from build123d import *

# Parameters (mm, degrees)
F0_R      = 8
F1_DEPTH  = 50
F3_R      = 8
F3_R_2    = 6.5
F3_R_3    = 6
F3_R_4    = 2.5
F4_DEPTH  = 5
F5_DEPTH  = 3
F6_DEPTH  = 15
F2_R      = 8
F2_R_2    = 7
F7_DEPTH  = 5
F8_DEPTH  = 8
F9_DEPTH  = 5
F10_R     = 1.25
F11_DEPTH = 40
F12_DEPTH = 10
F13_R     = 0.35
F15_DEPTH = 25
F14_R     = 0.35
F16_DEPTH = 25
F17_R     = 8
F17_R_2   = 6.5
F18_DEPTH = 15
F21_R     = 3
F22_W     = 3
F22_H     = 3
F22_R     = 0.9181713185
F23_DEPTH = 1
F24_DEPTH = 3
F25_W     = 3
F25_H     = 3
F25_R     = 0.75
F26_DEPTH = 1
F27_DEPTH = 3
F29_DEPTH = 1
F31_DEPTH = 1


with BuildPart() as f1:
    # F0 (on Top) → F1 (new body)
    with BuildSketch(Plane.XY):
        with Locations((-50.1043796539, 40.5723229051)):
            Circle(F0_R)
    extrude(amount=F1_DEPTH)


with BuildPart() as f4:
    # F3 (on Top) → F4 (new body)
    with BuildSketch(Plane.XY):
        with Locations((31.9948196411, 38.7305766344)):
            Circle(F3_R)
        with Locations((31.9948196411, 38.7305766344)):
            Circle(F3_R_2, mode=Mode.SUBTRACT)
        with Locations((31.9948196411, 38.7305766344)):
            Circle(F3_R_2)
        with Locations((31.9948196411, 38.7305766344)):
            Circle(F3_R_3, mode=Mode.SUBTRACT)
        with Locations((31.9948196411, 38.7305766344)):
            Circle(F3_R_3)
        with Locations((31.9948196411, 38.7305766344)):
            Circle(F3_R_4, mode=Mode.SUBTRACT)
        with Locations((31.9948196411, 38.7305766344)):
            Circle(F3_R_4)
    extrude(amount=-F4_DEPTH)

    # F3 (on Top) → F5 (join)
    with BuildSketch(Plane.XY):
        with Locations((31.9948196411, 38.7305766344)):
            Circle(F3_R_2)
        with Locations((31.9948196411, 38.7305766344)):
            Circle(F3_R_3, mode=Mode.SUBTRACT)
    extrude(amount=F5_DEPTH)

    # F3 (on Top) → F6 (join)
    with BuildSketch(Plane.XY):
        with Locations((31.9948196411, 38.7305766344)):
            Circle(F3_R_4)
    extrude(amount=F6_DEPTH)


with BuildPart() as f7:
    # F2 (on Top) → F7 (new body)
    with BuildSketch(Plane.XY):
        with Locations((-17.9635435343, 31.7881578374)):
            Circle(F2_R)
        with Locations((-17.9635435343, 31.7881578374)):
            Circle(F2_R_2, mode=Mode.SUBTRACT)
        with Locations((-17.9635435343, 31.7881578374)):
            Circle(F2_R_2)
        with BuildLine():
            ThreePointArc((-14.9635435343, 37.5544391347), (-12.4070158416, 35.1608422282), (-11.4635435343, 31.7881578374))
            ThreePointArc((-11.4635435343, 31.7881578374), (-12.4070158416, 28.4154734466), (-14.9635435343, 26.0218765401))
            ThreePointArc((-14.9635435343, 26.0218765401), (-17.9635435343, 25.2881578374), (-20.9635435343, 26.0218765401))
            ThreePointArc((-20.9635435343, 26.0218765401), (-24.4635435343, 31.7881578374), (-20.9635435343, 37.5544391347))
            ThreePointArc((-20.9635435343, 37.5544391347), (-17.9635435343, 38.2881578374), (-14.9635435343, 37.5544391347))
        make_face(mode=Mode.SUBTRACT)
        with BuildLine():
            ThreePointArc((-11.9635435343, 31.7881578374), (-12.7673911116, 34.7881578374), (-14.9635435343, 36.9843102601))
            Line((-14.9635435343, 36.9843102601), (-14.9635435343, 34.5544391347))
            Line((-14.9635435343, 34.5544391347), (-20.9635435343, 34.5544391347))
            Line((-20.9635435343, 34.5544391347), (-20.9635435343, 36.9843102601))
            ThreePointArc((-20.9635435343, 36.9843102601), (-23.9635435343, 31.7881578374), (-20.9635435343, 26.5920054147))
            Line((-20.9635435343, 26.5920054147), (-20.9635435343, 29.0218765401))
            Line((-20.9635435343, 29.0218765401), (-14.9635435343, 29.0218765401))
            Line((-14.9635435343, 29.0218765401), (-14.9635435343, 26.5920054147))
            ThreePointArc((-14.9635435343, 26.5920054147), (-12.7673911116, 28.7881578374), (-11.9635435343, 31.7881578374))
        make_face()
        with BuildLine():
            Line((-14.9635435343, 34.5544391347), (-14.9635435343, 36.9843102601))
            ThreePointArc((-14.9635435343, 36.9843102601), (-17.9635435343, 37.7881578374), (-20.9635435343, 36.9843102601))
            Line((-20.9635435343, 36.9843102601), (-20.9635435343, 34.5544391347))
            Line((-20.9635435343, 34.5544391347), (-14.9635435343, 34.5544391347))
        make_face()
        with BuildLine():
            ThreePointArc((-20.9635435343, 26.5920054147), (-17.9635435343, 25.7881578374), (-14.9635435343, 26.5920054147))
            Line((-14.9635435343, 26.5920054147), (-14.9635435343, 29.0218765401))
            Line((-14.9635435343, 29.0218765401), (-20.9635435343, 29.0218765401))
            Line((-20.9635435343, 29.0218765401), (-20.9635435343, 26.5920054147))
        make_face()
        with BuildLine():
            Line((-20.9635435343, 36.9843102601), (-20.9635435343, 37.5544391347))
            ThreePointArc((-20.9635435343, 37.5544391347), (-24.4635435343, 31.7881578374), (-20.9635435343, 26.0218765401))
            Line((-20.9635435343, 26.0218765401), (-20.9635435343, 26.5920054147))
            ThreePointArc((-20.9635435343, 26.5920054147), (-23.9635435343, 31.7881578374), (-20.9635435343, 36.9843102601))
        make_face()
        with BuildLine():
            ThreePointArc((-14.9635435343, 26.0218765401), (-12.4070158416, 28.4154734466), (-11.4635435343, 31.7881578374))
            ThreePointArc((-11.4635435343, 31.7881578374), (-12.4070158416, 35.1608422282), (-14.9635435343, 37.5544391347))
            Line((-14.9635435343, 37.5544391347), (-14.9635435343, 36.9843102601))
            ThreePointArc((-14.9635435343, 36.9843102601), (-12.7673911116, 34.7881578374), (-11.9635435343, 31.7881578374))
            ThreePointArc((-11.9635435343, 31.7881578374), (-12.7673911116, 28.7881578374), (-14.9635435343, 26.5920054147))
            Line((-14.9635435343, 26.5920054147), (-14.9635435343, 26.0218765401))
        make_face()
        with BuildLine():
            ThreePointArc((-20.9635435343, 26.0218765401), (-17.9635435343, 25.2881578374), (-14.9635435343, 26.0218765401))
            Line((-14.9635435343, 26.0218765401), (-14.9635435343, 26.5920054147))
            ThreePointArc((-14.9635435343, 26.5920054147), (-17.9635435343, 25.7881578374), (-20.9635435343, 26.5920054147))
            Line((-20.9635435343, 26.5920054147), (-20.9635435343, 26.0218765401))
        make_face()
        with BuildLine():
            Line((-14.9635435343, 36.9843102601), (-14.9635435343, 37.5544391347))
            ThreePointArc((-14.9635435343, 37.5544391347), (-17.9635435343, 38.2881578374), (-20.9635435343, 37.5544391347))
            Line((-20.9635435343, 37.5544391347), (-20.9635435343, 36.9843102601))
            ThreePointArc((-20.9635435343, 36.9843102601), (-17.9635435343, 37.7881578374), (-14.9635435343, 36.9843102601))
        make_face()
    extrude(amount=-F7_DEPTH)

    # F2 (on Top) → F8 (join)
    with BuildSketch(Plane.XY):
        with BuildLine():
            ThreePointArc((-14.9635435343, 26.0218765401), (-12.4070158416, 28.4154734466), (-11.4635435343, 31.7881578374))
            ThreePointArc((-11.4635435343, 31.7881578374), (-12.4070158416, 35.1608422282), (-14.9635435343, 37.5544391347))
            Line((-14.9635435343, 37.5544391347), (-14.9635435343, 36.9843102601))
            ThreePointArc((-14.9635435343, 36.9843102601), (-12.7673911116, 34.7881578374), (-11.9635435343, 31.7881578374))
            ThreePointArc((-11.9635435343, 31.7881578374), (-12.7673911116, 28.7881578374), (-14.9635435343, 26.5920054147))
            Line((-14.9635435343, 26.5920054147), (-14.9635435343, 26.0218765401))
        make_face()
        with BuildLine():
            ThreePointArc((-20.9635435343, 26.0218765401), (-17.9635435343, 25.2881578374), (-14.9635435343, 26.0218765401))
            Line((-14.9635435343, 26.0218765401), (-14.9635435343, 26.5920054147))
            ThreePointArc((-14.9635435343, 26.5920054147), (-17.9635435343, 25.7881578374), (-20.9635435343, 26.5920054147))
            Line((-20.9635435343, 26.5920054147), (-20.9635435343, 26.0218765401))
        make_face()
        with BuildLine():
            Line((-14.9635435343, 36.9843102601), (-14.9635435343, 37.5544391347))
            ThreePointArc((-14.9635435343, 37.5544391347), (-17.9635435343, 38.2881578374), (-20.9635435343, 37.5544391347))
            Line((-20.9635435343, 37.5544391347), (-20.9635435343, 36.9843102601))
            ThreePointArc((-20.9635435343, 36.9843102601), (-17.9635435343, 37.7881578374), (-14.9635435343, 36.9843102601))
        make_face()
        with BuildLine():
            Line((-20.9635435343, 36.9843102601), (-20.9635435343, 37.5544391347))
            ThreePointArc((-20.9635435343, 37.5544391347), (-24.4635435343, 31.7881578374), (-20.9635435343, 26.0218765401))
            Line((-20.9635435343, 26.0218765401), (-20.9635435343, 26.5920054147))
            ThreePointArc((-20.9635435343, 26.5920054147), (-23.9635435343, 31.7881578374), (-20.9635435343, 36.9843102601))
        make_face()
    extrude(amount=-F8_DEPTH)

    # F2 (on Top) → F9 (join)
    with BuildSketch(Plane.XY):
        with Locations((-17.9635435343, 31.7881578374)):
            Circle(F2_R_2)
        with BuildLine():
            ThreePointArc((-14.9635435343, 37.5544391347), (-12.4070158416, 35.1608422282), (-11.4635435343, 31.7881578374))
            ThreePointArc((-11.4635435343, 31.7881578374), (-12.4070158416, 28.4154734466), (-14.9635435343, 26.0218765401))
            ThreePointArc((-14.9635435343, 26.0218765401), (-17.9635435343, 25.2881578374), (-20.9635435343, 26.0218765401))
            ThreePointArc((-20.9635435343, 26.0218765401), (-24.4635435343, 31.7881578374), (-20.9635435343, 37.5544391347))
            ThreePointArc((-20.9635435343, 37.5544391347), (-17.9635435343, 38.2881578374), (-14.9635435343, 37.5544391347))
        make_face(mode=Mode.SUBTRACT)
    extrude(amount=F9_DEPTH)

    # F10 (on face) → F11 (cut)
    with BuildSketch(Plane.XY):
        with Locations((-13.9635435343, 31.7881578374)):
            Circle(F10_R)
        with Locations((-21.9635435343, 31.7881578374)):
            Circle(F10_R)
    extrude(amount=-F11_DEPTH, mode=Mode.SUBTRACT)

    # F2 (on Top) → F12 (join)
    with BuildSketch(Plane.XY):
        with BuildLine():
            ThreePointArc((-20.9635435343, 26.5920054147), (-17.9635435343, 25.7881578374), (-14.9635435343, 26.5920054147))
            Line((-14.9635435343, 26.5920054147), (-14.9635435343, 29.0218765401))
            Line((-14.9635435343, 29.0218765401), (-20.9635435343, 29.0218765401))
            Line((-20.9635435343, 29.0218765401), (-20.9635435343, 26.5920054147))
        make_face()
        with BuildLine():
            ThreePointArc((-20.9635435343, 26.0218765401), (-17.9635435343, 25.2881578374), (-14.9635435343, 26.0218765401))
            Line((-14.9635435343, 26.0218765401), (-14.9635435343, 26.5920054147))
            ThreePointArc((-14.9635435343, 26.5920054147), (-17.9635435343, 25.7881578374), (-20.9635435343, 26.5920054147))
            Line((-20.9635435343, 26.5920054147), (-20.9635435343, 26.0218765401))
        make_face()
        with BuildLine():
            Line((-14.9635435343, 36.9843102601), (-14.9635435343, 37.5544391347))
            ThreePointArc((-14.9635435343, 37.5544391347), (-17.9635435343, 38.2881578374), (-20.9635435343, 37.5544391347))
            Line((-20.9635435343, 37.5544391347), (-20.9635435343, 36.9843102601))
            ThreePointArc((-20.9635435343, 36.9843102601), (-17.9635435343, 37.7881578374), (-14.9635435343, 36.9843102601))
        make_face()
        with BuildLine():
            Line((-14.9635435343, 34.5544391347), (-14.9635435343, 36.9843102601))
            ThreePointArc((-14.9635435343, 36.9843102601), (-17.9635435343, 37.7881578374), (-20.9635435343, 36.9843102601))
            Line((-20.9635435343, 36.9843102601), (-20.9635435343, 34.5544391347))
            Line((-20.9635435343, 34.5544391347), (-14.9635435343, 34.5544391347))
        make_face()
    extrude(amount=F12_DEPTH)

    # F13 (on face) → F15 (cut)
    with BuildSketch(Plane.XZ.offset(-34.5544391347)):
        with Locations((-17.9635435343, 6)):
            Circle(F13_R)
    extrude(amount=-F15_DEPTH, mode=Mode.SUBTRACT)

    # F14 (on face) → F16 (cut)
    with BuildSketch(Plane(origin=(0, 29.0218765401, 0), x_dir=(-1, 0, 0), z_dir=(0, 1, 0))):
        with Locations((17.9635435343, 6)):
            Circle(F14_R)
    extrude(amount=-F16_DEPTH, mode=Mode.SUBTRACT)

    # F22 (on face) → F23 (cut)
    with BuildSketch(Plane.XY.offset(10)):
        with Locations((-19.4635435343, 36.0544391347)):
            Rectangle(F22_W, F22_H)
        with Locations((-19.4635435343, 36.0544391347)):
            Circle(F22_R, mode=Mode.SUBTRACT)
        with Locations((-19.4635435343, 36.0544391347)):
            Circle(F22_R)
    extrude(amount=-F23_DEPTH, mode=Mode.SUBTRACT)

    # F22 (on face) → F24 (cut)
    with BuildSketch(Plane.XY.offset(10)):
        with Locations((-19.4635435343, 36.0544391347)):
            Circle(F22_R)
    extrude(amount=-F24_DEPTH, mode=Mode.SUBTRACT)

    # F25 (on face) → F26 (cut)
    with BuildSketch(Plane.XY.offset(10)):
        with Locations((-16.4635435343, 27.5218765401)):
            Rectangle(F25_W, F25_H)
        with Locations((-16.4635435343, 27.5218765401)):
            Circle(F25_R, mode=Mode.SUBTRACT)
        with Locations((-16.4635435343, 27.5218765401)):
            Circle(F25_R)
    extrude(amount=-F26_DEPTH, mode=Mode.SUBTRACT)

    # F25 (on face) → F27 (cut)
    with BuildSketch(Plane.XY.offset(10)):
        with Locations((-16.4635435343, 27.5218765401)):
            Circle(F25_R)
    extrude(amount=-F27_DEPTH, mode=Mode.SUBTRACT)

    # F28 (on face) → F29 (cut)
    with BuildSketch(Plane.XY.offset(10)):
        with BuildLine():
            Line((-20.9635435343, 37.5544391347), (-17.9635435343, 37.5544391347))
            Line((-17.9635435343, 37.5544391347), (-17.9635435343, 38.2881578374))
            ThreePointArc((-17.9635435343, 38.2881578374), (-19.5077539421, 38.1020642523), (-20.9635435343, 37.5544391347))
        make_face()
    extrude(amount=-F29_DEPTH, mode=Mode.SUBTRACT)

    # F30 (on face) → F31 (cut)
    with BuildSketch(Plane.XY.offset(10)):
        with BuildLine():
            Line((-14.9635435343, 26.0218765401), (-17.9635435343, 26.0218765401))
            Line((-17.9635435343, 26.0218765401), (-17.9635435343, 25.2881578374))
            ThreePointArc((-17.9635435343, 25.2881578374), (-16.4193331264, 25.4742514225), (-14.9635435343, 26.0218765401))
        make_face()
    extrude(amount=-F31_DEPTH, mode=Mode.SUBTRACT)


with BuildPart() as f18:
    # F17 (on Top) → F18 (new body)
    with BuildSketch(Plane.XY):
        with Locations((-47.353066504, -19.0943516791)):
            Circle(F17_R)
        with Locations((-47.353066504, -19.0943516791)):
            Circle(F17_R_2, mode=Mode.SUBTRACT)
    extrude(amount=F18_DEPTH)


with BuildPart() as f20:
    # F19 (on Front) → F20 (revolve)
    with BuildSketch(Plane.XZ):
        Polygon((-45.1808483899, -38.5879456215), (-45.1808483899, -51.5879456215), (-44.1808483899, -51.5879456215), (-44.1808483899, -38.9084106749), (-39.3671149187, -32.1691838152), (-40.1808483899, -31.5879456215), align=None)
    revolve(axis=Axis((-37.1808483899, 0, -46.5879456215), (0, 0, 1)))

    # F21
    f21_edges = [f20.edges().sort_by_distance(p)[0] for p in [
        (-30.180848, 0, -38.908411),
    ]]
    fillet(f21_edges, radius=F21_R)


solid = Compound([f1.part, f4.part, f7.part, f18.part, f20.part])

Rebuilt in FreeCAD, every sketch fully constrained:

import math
import FreeCAD as App
import Part
import Sketcher


def edges_at(feature, points):
    """Names of the edges that pass closest to the given points."""
    edges = feature.Shape.Edges
    near = lambda p: min(range(len(edges)), key=lambda i: edges[i].distToShape(Part.Vertex(*p))[0])
    return sorted({f"Edge{near(p) + 1}" for p in points})

doc = App.newDocument("Part")
body = doc.addObject("PartDesign::Body", "Body")

# Sketch on XY plane
sketch1 = doc.addObject("Sketcher::SketchObject", "Sketch")
body.addObject(sketch1)
sketch1.AttachmentSupport = (doc.XY_Plane, [""])
sketch1.MapMode = "FlatFace"
sketch1.addGeometry(Part.Circle(App.Vector(-50, 41, 0), App.Vector(0, 0, 1), 8), False)
sketch1.addConstraint(Sketcher.Constraint("Diameter", 0, 16.0))
sketch1.addConstraint(Sketcher.Constraint("DistanceX", 0, 3, -1, 1, 50.10438))
sketch1.addConstraint(Sketcher.Constraint("DistanceY", -1, 1, 0, 3, 40.572323))
pad1 = doc.addObject("PartDesign::Pad", "Pad")
body.addObject(pad1)
pad1.Profile = sketch1
pad1.Length = 50
body2 = doc.addObject("PartDesign::Body", "Body001")

# Sketch on XY plane
sketch2 = doc.addObject("Sketcher::SketchObject", "Sketch001")
body2.addObject(sketch2)
sketch2.AttachmentSupport = (doc.getObject("XY_Plane001"), [""])
sketch2.MapMode = "FlatFace"
sketch2.addGeometry(Part.Circle(App.Vector(32, 39, 0), App.Vector(0, 0, 1), 8), False)
sketch2.addConstraint(Sketcher.Constraint("Diameter", 0, 16.0))
sketch2.addConstraint(Sketcher.Constraint("DistanceX", -1, 1, 0, 3, 31.99482))
sketch2.addConstraint(Sketcher.Constraint("DistanceY", -1, 1, 0, 3, 38.730577))
pad2 = doc.addObject("PartDesign::Pad", "Pad001")
body2.addObject(pad2)
pad2.Profile = sketch2
pad2.Length = 5
pad2.Reversed = True

# Sketch on XY plane
sketch3 = doc.addObject("Sketcher::SketchObject", "Sketch002")
body2.addObject(sketch3)
sketch3.AttachmentSupport = (doc.getObject("XY_Plane001"), [""])
sketch3.MapMode = "FlatFace"
sketch3.addGeometry(Part.Circle(App.Vector(32, 39, 0), App.Vector(0, 0, 1), 6), False)
sketch3.addGeometry(Part.Circle(App.Vector(32, 39, 0), App.Vector(0, 0, 1), 6), False)
sketch3.addConstraint(Sketcher.Constraint("Coincident", 1, 3, 0, 3))
sketch3.addConstraint(Sketcher.Constraint("Diameter", 0, 13.0))
sketch3.addConstraint(Sketcher.Constraint("Diameter", 1, 12.0))
sketch3.addConstraint(Sketcher.Constraint("DistanceX", -1, 1, 0, 3, 31.99482))
sketch3.addConstraint(Sketcher.Constraint("DistanceY", -1, 1, 0, 3, 38.730577))
pad3 = doc.addObject("PartDesign::Pad", "Pad002")
body2.addObject(pad3)
pad3.Profile = sketch3
pad3.Length = 3

# Sketch on XY plane
sketch4 = doc.addObject("Sketcher::SketchObject", "Sketch003")
body2.addObject(sketch4)
sketch4.AttachmentSupport = (doc.getObject("XY_Plane001"), [""])
sketch4.MapMode = "FlatFace"
sketch4.addGeometry(Part.Circle(App.Vector(32, 38.7, 0), App.Vector(0, 0, 1), 2.5), False)
sketch4.addConstraint(Sketcher.Constraint("Diameter", 0, 5.0))
sketch4.addConstraint(Sketcher.Constraint("DistanceX", -1, 1, 0, 3, 31.99482))
sketch4.addConstraint(Sketcher.Constraint("DistanceY", -1, 1, 0, 3, 38.730577))
pad4 = doc.addObject("PartDesign::Pad", "Pad003")
body2.addObject(pad4)
pad4.Profile = sketch4
pad4.Length = 15
body3 = doc.addObject("PartDesign::Body", "Body002")

# Sketch on XY plane
sketch5 = doc.addObject("Sketcher::SketchObject", "Sketch004")
body3.addObject(sketch5)
sketch5.AttachmentSupport = (doc.getObject("XY_Plane002"), [""])
sketch5.MapMode = "FlatFace"
sketch5.addGeometry(Part.Circle(App.Vector(-18, 32, 0), App.Vector(0, 0, 1), 8), False)
sketch5.addConstraint(Sketcher.Constraint("Diameter", 0, 16.0))
sketch5.addConstraint(Sketcher.Constraint("DistanceX", 0, 3, -1, 1, 17.963544))
sketch5.addConstraint(Sketcher.Constraint("DistanceY", -1, 1, 0, 3, 31.788158))
pad5 = doc.addObject("PartDesign::Pad", "Pad004")
body3.addObject(pad5)
pad5.Profile = sketch5
pad5.Length = 5
pad5.Reversed = True

# Sketch on XY plane
sketch6 = doc.addObject("Sketcher::SketchObject", "Sketch005")
body3.addObject(sketch6)
sketch6.AttachmentSupport = (doc.getObject("XY_Plane002"), [""])
sketch6.MapMode = "FlatFace"
sketch6.addGeometry(Part.ArcOfCircle(Part.Circle(App.Vector(-18, 32, 0), App.Vector(0, 0, 1), 6), math.radians(-63), math.radians(0)), False)
sketch6.addGeometry(Part.ArcOfCircle(Part.Circle(App.Vector(-18, 32, 0), App.Vector(0, 0, 1), 6), math.radians(0), math.radians(63)), False)
sketch6.addGeometry(Part.ArcOfCircle(Part.Circle(App.Vector(-18, 32, 0), App.Vector(0, 0, 1), 6), math.radians(63), math.radians(117)), False)
sketch6.addGeometry(Part.ArcOfCircle(Part.Circle(App.Vector(-18, 32, 0), App.Vector(0, 0, 1), 6), math.radians(117), math.radians(243)), False)
sketch6.addGeometry(Part.ArcOfCircle(Part.Circle(App.Vector(-18, 32, 0), App.Vector(0, 0, 1), 6), math.radians(-117), math.radians(-63)), False)
sketch6.addGeometry(Part.ArcOfCircle(Part.Circle(App.Vector(-18, 32, 0), App.Vector(0, 0, 1), 6), math.radians(60), math.radians(120)), False)
sketch6.addGeometry(Part.ArcOfCircle(Part.Circle(App.Vector(-18, 32, 0), App.Vector(0, 0, 1), 6), math.radians(0), math.radians(60)), False)
sketch6.addGeometry(Part.ArcOfCircle(Part.Circle(App.Vector(-18, 32, 0), App.Vector(0, 0, 1), 6), math.radians(-60), math.radians(0)), False)
sketch6.addGeometry(Part.ArcOfCircle(Part.Circle(App.Vector(-18, 32, 0), App.Vector(0, 0, 1), 6), math.radians(-120), math.radians(-60)), False)
sketch6.addGeometry(Part.ArcOfCircle(Part.Circle(App.Vector(-18, 32, 0), App.Vector(0, 0, 1), 6), math.radians(120), math.radians(240)), False)
sketch6.addConstraint(Sketcher.Constraint("Tangent", 0, 2, 1, 1))
sketch6.addConstraint(Sketcher.Constraint("Tangent", 1, 2, 2, 1))
sketch6.addConstraint(Sketcher.Constraint("Tangent", 2, 2, 3, 1))
sketch6.addConstraint(Sketcher.Constraint("Tangent", 3, 2, 4, 1))
sketch6.addConstraint(Sketcher.Constraint("Tangent", 4, 2, 0, 1))
sketch6.addConstraint(Sketcher.Constraint("Tangent", 5, 1, 6, 2))
sketch6.addConstraint(Sketcher.Constraint("Tangent", 6, 1, 7, 2))
sketch6.addConstraint(Sketcher.Constraint("Tangent", 7, 1, 8, 2))
sketch6.addConstraint(Sketcher.Constraint("Tangent", 8, 1, 9, 2))
sketch6.addConstraint(Sketcher.Constraint("Tangent", 9, 1, 5, 2))
sketch6.addConstraint(Sketcher.Constraint("Coincident", 2, 3, 0, 3))
sketch6.addConstraint(Sketcher.Constraint("Coincident", 5, 3, 0, 3))
sketch6.addConstraint(Sketcher.Constraint("Coincident", 7, 3, 0, 3))
sketch6.addConstraint(Sketcher.Constraint("Horizontal", 9, 3, 0, 2))
sketch6.addConstraint(Sketcher.Constraint("Horizontal", 1, 2, 2, 2))
sketch6.addConstraint(Sketcher.Constraint("Horizontal", 3, 2, 4, 2))
sketch6.addConstraint(Sketcher.Constraint("Horizontal", 0, 2, 6, 1))
sketch6.addConstraint(Sketcher.Constraint("Horizontal", 7, 1, 8, 1))
sketch6.addConstraint(Sketcher.Constraint("Horizontal", 5, 1, 9, 1))
sketch6.addConstraint(Sketcher.Constraint("Vertical", 2, 2, 3, 2))
sketch6.addConstraint(Sketcher.Constraint("Vertical", 4, 2, 5, 1))
sketch6.addConstraint(Sketcher.Constraint("Vertical", 5, 1, 7, 1))
sketch6.addConstraint(Sketcher.Constraint("Radius", 5, 6.0))
sketch6.addConstraint(Sketcher.Constraint("Radius", 0, 6.5))
sketch6.addConstraint(Sketcher.Constraint("DistanceX", 2, 3, 1, 2, 3.0))
sketch6.addConstraint(Sketcher.Constraint("DistanceY", -1, 1, 1, 2, 37.554439))
sketch6.addConstraint(Sketcher.Constraint("DistanceX", 0, 3, -1, 1, 17.963544))
pad6 = doc.addObject("PartDesign::Pad", "Pad005")
body3.addObject(pad6)
pad6.Profile = sketch6
pad6.Length = 8
pad6.Reversed = True

# Sketch on XY plane
sketch7 = doc.addObject("Sketcher::SketchObject", "Sketch006")
body3.addObject(sketch7)
sketch7.AttachmentSupport = (doc.getObject("XY_Plane002"), [""])
sketch7.MapMode = "FlatFace"
sketch7.addGeometry(Part.Circle(App.Vector(-18, 32, 0), App.Vector(0, 0, 1), 7), False)
sketch7.addGeometry(Part.ArcOfCircle(Part.Circle(App.Vector(-18, 32, 0), App.Vector(0, 0, 1), 6), math.radians(63), math.radians(117)), False)
sketch7.addGeometry(Part.ArcOfCircle(Part.Circle(App.Vector(-18, 32, 0), App.Vector(0, 0, 1), 6), math.radians(0), math.radians(63)), False)
sketch7.addGeometry(Part.ArcOfCircle(Part.Circle(App.Vector(-18, 32, 0), App.Vector(0, 0, 1), 6), math.radians(-63), math.radians(0)), False)
sketch7.addGeometry(Part.ArcOfCircle(Part.Circle(App.Vector(-18, 32, 0), App.Vector(0, 0, 1), 6), math.radians(-117), math.radians(-63)), False)
sketch7.addGeometry(Part.ArcOfCircle(Part.Circle(App.Vector(-18, 32, 0), App.Vector(0, 0, 1), 6), math.radians(117), math.radians(243)), False)
sketch7.addConstraint(Sketcher.Constraint("Tangent", 1, 1, 2, 2))
sketch7.addConstraint(Sketcher.Constraint("Tangent", 2, 1, 3, 2))
sketch7.addConstraint(Sketcher.Constraint("Tangent", 3, 1, 4, 2))
sketch7.addConstraint(Sketcher.Constraint("Tangent", 4, 1, 5, 2))
sketch7.addConstraint(Sketcher.Constraint("Tangent", 5, 1, 1, 2))
sketch7.addConstraint(Sketcher.Constraint("Coincident", 1, 3, 0, 3))
sketch7.addConstraint(Sketcher.Constraint("Coincident", 3, 3, 0, 3))
sketch7.addConstraint(Sketcher.Constraint("Horizontal", 5, 3, 2, 1))
sketch7.addConstraint(Sketcher.Constraint("Horizontal", 3, 1, 4, 1))
sketch7.addConstraint(Sketcher.Constraint("Horizontal", 1, 1, 5, 1))
sketch7.addConstraint(Sketcher.Constraint("Vertical", 1, 1, 3, 1))
sketch7.addConstraint(Sketcher.Constraint("Diameter", 0, 14.0))
sketch7.addConstraint(Sketcher.Constraint("Radius", 1, 6.5))
sketch7.addConstraint(Sketcher.Constraint("DistanceX", 1, 3, 1, 1, 3.0))
sketch7.addConstraint(Sketcher.Constraint("DistanceY", -1, 1, 1, 1, 37.554439))
sketch7.addConstraint(Sketcher.Constraint("DistanceX", 0, 3, -1, 1, 17.963544))
pad7 = doc.addObject("PartDesign::Pad", "Pad006")
body3.addObject(pad7)
pad7.Profile = sketch7
pad7.Length = 5

# Sketch on XY plane
sketch8 = doc.addObject("Sketcher::SketchObject", "Sketch007")
body3.addObject(sketch8)
sketch8.AttachmentSupport = (doc.getObject("XY_Plane002"), [""])
sketch8.MapMode = "FlatFace"
sketch8.addGeometry(Part.Circle(App.Vector(-14, 31.8, 0), App.Vector(0, 0, 1), 1.2), False)
sketch8.addGeometry(Part.Circle(App.Vector(-22, 31.8, 0), App.Vector(0, 0, 1), 1.2), False)
sketch8.addConstraint(Sketcher.Constraint("Equal", 0, 1))
sketch8.addConstraint(Sketcher.Constraint("Horizontal", 0, 3, 1, 3))
sketch8.addConstraint(Sketcher.Constraint("Diameter", 0, 2.5))
sketch8.addConstraint(Sketcher.Constraint("DistanceX", 1, 3, 0, 3, 8.0))
sketch8.addConstraint(Sketcher.Constraint("DistanceX", 0, 3, -1, 1, 13.963544))
sketch8.addConstraint(Sketcher.Constraint("DistanceY", -1, 1, 0, 3, 31.788158))
pocket1 = doc.addObject("PartDesign::Pocket", "Pocket")
body3.addObject(pocket1)
pocket1.Profile = sketch8
pocket1.Length = 40

# Sketch on XY plane
sketch9 = doc.addObject("Sketcher::SketchObject", "Sketch008")
body3.addObject(sketch9)
sketch9.AttachmentSupport = (doc.getObject("XY_Plane002"), [""])
sketch9.MapMode = "FlatFace"
sketch9.addGeometry(Part.LineSegment(App.Vector(-15, 29, 0), App.Vector(-21, 29, 0)), False)
sketch9.addGeometry(Part.LineSegment(App.Vector(-21, 29, 0), App.Vector(-21, 26, 0)), False)
sketch9.addGeometry(Part.ArcOfCircle(Part.Circle(App.Vector(-18, 31.8, 0), App.Vector(0, 0, 1), 6.5), math.radians(-117), math.radians(-63)), False)
sketch9.addGeometry(Part.LineSegment(App.Vector(-15, 26, 0), App.Vector(-15, 29, 0)), False)
sketch9.addGeometry(Part.ArcOfCircle(Part.Circle(App.Vector(-18, 31.8, 0), App.Vector(0, 0, 1), 6.5), math.radians(63), math.radians(117)), False)
sketch9.addGeometry(Part.LineSegment(App.Vector(-21, 37.6, 0), App.Vector(-21, 34.6, 0)), False)
sketch9.addGeometry(Part.LineSegment(App.Vector(-21, 34.6, 0), App.Vector(-15, 34.6, 0)), False)
sketch9.addGeometry(Part.LineSegment(App.Vector(-15, 34.6, 0), App.Vector(-15, 37.6, 0)), False)
sketch9.addConstraint(Sketcher.Constraint("Coincident", 0, 2, 1, 1))
sketch9.addConstraint(Sketcher.Constraint("Coincident", 1, 2, 2, 1))
sketch9.addConstraint(Sketcher.Constraint("Coincident", 2, 2, 3, 1))
sketch9.addConstraint(Sketcher.Constraint("Coincident", 3, 2, 0, 1))
sketch9.addConstraint(Sketcher.Constraint("Coincident", 4, 2, 5, 1))
sketch9.addConstraint(Sketcher.Constraint("Coincident", 5, 2, 6, 1))
sketch9.addConstraint(Sketcher.Constraint("Coincident", 6, 2, 7, 1))
sketch9.addConstraint(Sketcher.Constraint("Coincident", 7, 2, 4, 1))
sketch9.addConstraint(Sketcher.Constraint("Horizontal", 0))
sketch9.addConstraint(Sketcher.Constraint("Vertical", 1))
sketch9.addConstraint(Sketcher.Constraint("Vertical", 3))
sketch9.addConstraint(Sketcher.Constraint("Vertical", 5))
sketch9.addConstraint(Sketcher.Constraint("Horizontal", 6))
sketch9.addConstraint(Sketcher.Constraint("Vertical", 7))
sketch9.addConstraint(Sketcher.Constraint("Coincident", 4, 3, 2, 3))
sketch9.addConstraint(Sketcher.Constraint("Equal", 2, 4))
sketch9.addConstraint(Sketcher.Constraint("Horizontal", 1, 2, 2, 2))
sketch9.addConstraint(Sketcher.Constraint("Horizontal", 4, 2, 7, 2))
sketch9.addConstraint(Sketcher.Constraint("Vertical", 1, 2, 4, 2))
sketch9.addConstraint(Sketcher.Constraint("Equal", 3, 5))
sketch9.addConstraint(Sketcher.Constraint("Radius", 2, 6.5))
sketch9.addConstraint(Sketcher.Constraint("DistanceX", 0, 2, 0, 1, 6.0))
sketch9.addConstraint(Sketcher.Constraint("DistanceY", 1, 2, 1, 1, 3.0))
sketch9.addConstraint(Sketcher.Constraint("DistanceY", -1, 1, 4, 2, 37.554439))
sketch9.addConstraint(Sketcher.Constraint("DistanceX", 2, 3, -1, 1, 17.963544))
pad8 = doc.addObject("PartDesign::Pad", "Pad007")
body3.addObject(pad8)
pad8.Profile = sketch9
pad8.Length = 10

# Sketch on XZ plane
sketch10 = doc.addObject("Sketcher::SketchObject", "Sketch009")
body3.addObject(sketch10)
sketch10.AttachmentSupport = (doc.getObject("XZ_Plane002"), [""])
sketch10.MapMode = "FlatFace"
sketch10.AttachmentOffset = App.Placement(App.Vector(0, 0, -34.554439), App.Rotation())
sketch10.addGeometry(Part.Circle(App.Vector(-17.96, 6, 0), App.Vector(0, 0, 1), 0.35), False)
sketch10.addConstraint(Sketcher.Constraint("Diameter", 0, 0.7))
sketch10.addConstraint(Sketcher.Constraint("DistanceY", -1, 1, 0, 3, 6.0))
sketch10.addConstraint(Sketcher.Constraint("DistanceX", 0, 3, -1, 1, 17.963544))
pocket2 = doc.addObject("PartDesign::Pocket", "Pocket001")
body3.addObject(pocket2)
pocket2.Profile = sketch10
pocket2.Length = 25

# Sketch on XZ plane
sketch11 = doc.addObject("Sketcher::SketchObject", "Sketch010")
body3.addObject(sketch11)
sketch11.AttachmentSupport = (doc.getObject("XZ_Plane002"), [""])
sketch11.MapMode = "FlatFace"
sketch11.AttachmentOffset = App.Placement(App.Vector(0, 0, -29.021877), App.Rotation())
sketch11.addGeometry(Part.Circle(App.Vector(-17.96, 6, 0), App.Vector(0, 0, 1), 0.35), False)
sketch11.addConstraint(Sketcher.Constraint("Diameter", 0, 0.7))
sketch11.addConstraint(Sketcher.Constraint("DistanceY", -1, 1, 0, 3, 6.0))
sketch11.addConstraint(Sketcher.Constraint("DistanceX", 0, 3, -1, 1, 17.963544))
pocket3 = doc.addObject("PartDesign::Pocket", "Pocket002")
body3.addObject(pocket3)
pocket3.Profile = sketch11
pocket3.Length = 25
pocket3.Reversed = True

# Sketch on XY plane
sketch12 = doc.addObject("Sketcher::SketchObject", "Sketch011")
body3.addObject(sketch12)
sketch12.AttachmentSupport = (doc.getObject("XY_Plane002"), [""])
sketch12.MapMode = "FlatFace"
sketch12.AttachmentOffset = App.Placement(App.Vector(0, 0, 10), App.Rotation())
sketch12.addGeometry(Part.LineSegment(App.Vector(-21, 37.6, 0), App.Vector(-21, 34.6, 0)), False)
sketch12.addGeometry(Part.LineSegment(App.Vector(-21, 34.6, 0), App.Vector(-18, 34.6, 0)), False)
sketch12.addGeometry(Part.LineSegment(App.Vector(-18, 34.6, 0), App.Vector(-18, 37.6, 0)), False)
sketch12.addGeometry(Part.LineSegment(App.Vector(-18, 37.6, 0), App.Vector(-21, 37.6, 0)), False)
sketch12.addConstraint(Sketcher.Constraint("Coincident", 0, 2, 1, 1))
sketch12.addConstraint(Sketcher.Constraint("Coincident", 1, 2, 2, 1))
sketch12.addConstraint(Sketcher.Constraint("Coincident", 2, 2, 3, 1))
sketch12.addConstraint(Sketcher.Constraint("Coincident", 3, 2, 0, 1))
sketch12.addConstraint(Sketcher.Constraint("Vertical", 0))
sketch12.addConstraint(Sketcher.Constraint("Horizontal", 1))
sketch12.addConstraint(Sketcher.Constraint("Vertical", 2))
sketch12.addConstraint(Sketcher.Constraint("Horizontal", 3))
sketch12.addConstraint(Sketcher.Constraint("Equal", 3, 0))
sketch12.addConstraint(Sketcher.Constraint("DistanceX", 1, 1, 1, 2, 3.0))
sketch12.addConstraint(Sketcher.Constraint("DistanceY", -1, 1, 0, 2, 34.554439))
sketch12.addConstraint(Sketcher.Constraint("DistanceX", 0, 2, -1, 1, 20.963544))
pocket4 = doc.addObject("PartDesign::Pocket", "Pocket003")
body3.addObject(pocket4)
pocket4.Profile = sketch12
pocket4.Length = 1

# Sketch on XY plane
sketch13 = doc.addObject("Sketcher::SketchObject", "Sketch012")
body3.addObject(sketch13)
sketch13.AttachmentSupport = (doc.getObject("XY_Plane002"), [""])
sketch13.MapMode = "FlatFace"
sketch13.AttachmentOffset = App.Placement(App.Vector(0, 0, 10), App.Rotation())
sketch13.addGeometry(Part.Circle(App.Vector(-19.5, 36.1, 0), App.Vector(0, 0, 1), 0.9), False)
sketch13.addConstraint(Sketcher.Constraint("Diameter", 0, 1.836343))
sketch13.addConstraint(Sketcher.Constraint("DistanceY", -1, 1, 0, 3, 36.054439))
sketch13.addConstraint(Sketcher.Constraint("DistanceX", 0, 3, -1, 1, 19.463544))
pocket5 = doc.addObject("PartDesign::Pocket", "Pocket004")
body3.addObject(pocket5)
pocket5.Profile = sketch13
pocket5.Length = 3

# Sketch on XY plane
sketch14 = doc.addObject("Sketcher::SketchObject", "Sketch013")
body3.addObject(sketch14)
sketch14.AttachmentSupport = (doc.getObject("XY_Plane002"), [""])
sketch14.MapMode = "FlatFace"
sketch14.AttachmentOffset = App.Placement(App.Vector(0, 0, 10), App.Rotation())
sketch14.addGeometry(Part.LineSegment(App.Vector(-18, 29, 0), App.Vector(-18, 26, 0)), False)
sketch14.addGeometry(Part.LineSegment(App.Vector(-18, 26, 0), App.Vector(-15, 26, 0)), False)
sketch14.addGeometry(Part.LineSegment(App.Vector(-15, 26, 0), App.Vector(-15, 29, 0)), False)
sketch14.addGeometry(Part.LineSegment(App.Vector(-15, 29, 0), App.Vector(-18, 29, 0)), False)
sketch14.addConstraint(Sketcher.Constraint("Coincident", 0, 2, 1, 1))
sketch14.addConstraint(Sketcher.Constraint("Coincident", 1, 2, 2, 1))
sketch14.addConstraint(Sketcher.Constraint("Coincident", 2, 2, 3, 1))
sketch14.addConstraint(Sketcher.Constraint("Coincident", 3, 2, 0, 1))
sketch14.addConstraint(Sketcher.Constraint("Vertical", 0))
sketch14.addConstraint(Sketcher.Constraint("Horizontal", 1))
sketch14.addConstraint(Sketcher.Constraint("Vertical", 2))
sketch14.addConstraint(Sketcher.Constraint("Horizontal", 3))
sketch14.addConstraint(Sketcher.Constraint("Equal", 3, 0))
sketch14.addConstraint(Sketcher.Constraint("DistanceX", 1, 1, 1, 2, 3.0))
sketch14.addConstraint(Sketcher.Constraint("DistanceX", 0, 2, -1, 1, 17.963544))
sketch14.addConstraint(Sketcher.Constraint("DistanceY", -1, 1, 0, 2, 26.021877))
pocket6 = doc.addObject("PartDesign::Pocket", "Pocket005")
body3.addObject(pocket6)
pocket6.Profile = sketch14
pocket6.Length = 1

# Sketch on XY plane
sketch15 = doc.addObject("Sketcher::SketchObject", "Sketch014")
body3.addObject(sketch15)
sketch15.AttachmentSupport = (doc.getObject("XY_Plane002"), [""])
sketch15.MapMode = "FlatFace"
sketch15.AttachmentOffset = App.Placement(App.Vector(0, 0, 10), App.Rotation())
sketch15.addGeometry(Part.Circle(App.Vector(-16.5, 27.5, 0), App.Vector(0, 0, 1), 0.8), False)
sketch15.addConstraint(Sketcher.Constraint("Diameter", 0, 1.5))
sketch15.addConstraint(Sketcher.Constraint("DistanceX", 0, 3, -1, 1, 16.463544))
sketch15.addConstraint(Sketcher.Constraint("DistanceY", -1, 1, 0, 3, 27.521877))
pocket7 = doc.addObject("PartDesign::Pocket", "Pocket006")
body3.addObject(pocket7)
pocket7.Profile = sketch15
pocket7.Length = 3

# Sketch on XY plane
sketch16 = doc.addObject("Sketcher::SketchObject", "Sketch015")
body3.addObject(sketch16)
sketch16.AttachmentSupport = (doc.getObject("XY_Plane002"), [""])
sketch16.MapMode = "FlatFace"
sketch16.AttachmentOffset = App.Placement(App.Vector(0, 0, 10), App.Rotation())
sketch16.addGeometry(Part.LineSegment(App.Vector(-21, 37.6, 0), App.Vector(-18, 37.6, 0)), False)
sketch16.addGeometry(Part.LineSegment(App.Vector(-18, 37.6, 0), App.Vector(-18, 38.3, 0)), False)
sketch16.addGeometry(Part.ArcOfCircle(Part.Circle(App.Vector(-18, 31.8, 0), App.Vector(0, 0, 1), 6.5), math.radians(90), math.radians(117)), False)
sketch16.addConstraint(Sketcher.Constraint("Coincident", 0, 2, 1, 1))
sketch16.addConstraint(Sketcher.Constraint("Coincident", 1, 2, 2, 1))
sketch16.addConstraint(Sketcher.Constraint("Coincident", 2, 2, 0, 1))
sketch16.addConstraint(Sketcher.Constraint("Horizontal", 0))
sketch16.addConstraint(Sketcher.Constraint("Vertical", 1))
sketch16.addConstraint(Sketcher.Constraint("Vertical", 2, 3, 0, 2))
sketch16.addConstraint(Sketcher.Constraint("Radius", 2, 6.5))
sketch16.addConstraint(Sketcher.Constraint("DistanceX", 0, 1, 0, 2, 3.0))
sketch16.addConstraint(Sketcher.Constraint("DistanceY", -1, 1, 0, 2, 37.554439))
sketch16.addConstraint(Sketcher.Constraint("DistanceX", 2, 3, -1, 1, 17.963544))
pocket8 = doc.addObject("PartDesign::Pocket", "Pocket007")
body3.addObject(pocket8)
pocket8.Profile = sketch16
pocket8.Length = 1

# Sketch on XY plane
sketch17 = doc.addObject("Sketcher::SketchObject", "Sketch016")
body3.addObject(sketch17)
sketch17.AttachmentSupport = (doc.getObject("XY_Plane002"), [""])
sketch17.MapMode = "FlatFace"
sketch17.AttachmentOffset = App.Placement(App.Vector(0, 0, 10), App.Rotation())
sketch17.addGeometry(Part.LineSegment(App.Vector(-15, 26, 0), App.Vector(-18, 26, 0)), False)
sketch17.addGeometry(Part.LineSegment(App.Vector(-18, 26, 0), App.Vector(-18, 25.3, 0)), False)
sketch17.addGeometry(Part.ArcOfCircle(Part.Circle(App.Vector(-18, 31.8, 0), App.Vector(0, 0, 1), 6.5), math.radians(-90), math.radians(-63)), False)
sketch17.addConstraint(Sketcher.Constraint("Coincident", 0, 2, 1, 1))
sketch17.addConstraint(Sketcher.Constraint("Coincident", 1, 2, 2, 1))
sketch17.addConstraint(Sketcher.Constraint("Coincident", 2, 2, 0, 1))
sketch17.addConstraint(Sketcher.Constraint("Horizontal", 0))
sketch17.addConstraint(Sketcher.Constraint("Vertical", 1))
sketch17.addConstraint(Sketcher.Constraint("Vertical", 2, 3, 0, 2))
sketch17.addConstraint(Sketcher.Constraint("Radius", 2, 6.5))
sketch17.addConstraint(Sketcher.Constraint("DistanceX", 0, 2, 0, 1, 3.0))
sketch17.addConstraint(Sketcher.Constraint("DistanceX", 2, 3, -1, 1, 17.963544))
sketch17.addConstraint(Sketcher.Constraint("DistanceY", -1, 1, 2, 3, 31.788158))
pocket9 = doc.addObject("PartDesign::Pocket", "Pocket008")
body3.addObject(pocket9)
pocket9.Profile = sketch17
pocket9.Length = 1
body4 = doc.addObject("PartDesign::Body", "Body003")

# Sketch on XY plane
sketch18 = doc.addObject("Sketcher::SketchObject", "Sketch017")
body4.addObject(sketch18)
sketch18.AttachmentSupport = (doc.getObject("XY_Plane003"), [""])
sketch18.MapMode = "FlatFace"
sketch18.addGeometry(Part.Circle(App.Vector(-47, -19, 0), App.Vector(0, 0, 1), 8), False)
sketch18.addGeometry(Part.Circle(App.Vector(-47, -19, 0), App.Vector(0, 0, 1), 6), False)
sketch18.addConstraint(Sketcher.Constraint("Coincident", 1, 3, 0, 3))
sketch18.addConstraint(Sketcher.Constraint("Diameter", 0, 16.0))
sketch18.addConstraint(Sketcher.Constraint("Diameter", 1, 13.0))
sketch18.addConstraint(Sketcher.Constraint("DistanceY", 0, 3, -1, 1, 19.094352))
sketch18.addConstraint(Sketcher.Constraint("DistanceX", 0, 3, -1, 1, 47.353067))
pad9 = doc.addObject("PartDesign::Pad", "Pad008")
body4.addObject(pad9)
pad9.Profile = sketch18
pad9.Length = 15
body5 = doc.addObject("PartDesign::Body", "Body004")

# Sketch on XZ plane
sketch19 = doc.addObject("Sketcher::SketchObject", "Sketch018")
body5.addObject(sketch19)
sketch19.AttachmentSupport = (doc.getObject("XZ_Plane004"), [""])
sketch19.MapMode = "FlatFace"
sketch19.addGeometry(Part.LineSegment(App.Vector(-45.2, -38.6, 0), App.Vector(-45.2, -51.6, 0)), False)
sketch19.addGeometry(Part.LineSegment(App.Vector(-45.2, -51.6, 0), App.Vector(-44.2, -51.6, 0)), False)
sketch19.addGeometry(Part.LineSegment(App.Vector(-44.2, -51.6, 0), App.Vector(-44.2, -38.9, 0)), False)
sketch19.addGeometry(Part.LineSegment(App.Vector(-44.2, -38.9, 0), App.Vector(-39.4, -32.2, 0)), False)
sketch19.addGeometry(Part.LineSegment(App.Vector(-39.4, -32.2, 0), App.Vector(-40.2, -31.6, 0)), False)
sketch19.addGeometry(Part.LineSegment(App.Vector(-40.2, -31.6, 0), App.Vector(-45.2, -38.6, 0)), False)
sketch19.addGeometry(Part.LineSegment(App.Vector(-37.2, -51.6, 0), App.Vector(-37.2, -31.6, 0)), True)  # axis
sketch19.addConstraint(Sketcher.Constraint("Coincident", 0, 2, 1, 1))
sketch19.addConstraint(Sketcher.Constraint("Coincident", 1, 2, 2, 1))
sketch19.addConstraint(Sketcher.Constraint("Coincident", 2, 2, 3, 1))
sketch19.addConstraint(Sketcher.Constraint("Coincident", 3, 2, 4, 1))
sketch19.addConstraint(Sketcher.Constraint("Coincident", 4, 2, 5, 1))
sketch19.addConstraint(Sketcher.Constraint("Coincident", 5, 2, 0, 1))
sketch19.addConstraint(Sketcher.Constraint("Vertical", 0))
sketch19.addConstraint(Sketcher.Constraint("Horizontal", 1))
sketch19.addConstraint(Sketcher.Constraint("Vertical", 2))
sketch19.addConstraint(Sketcher.Constraint("Vertical", 6))
sketch19.addConstraint(Sketcher.Constraint("Perpendicular", 3, 4))
sketch19.addConstraint(Sketcher.Constraint("Perpendicular", 4, 5))
sketch19.addConstraint(Sketcher.Constraint("Horizontal", 1, 2, 6, 1))
sketch19.addConstraint(Sketcher.Constraint("Horizontal", 4, 2, 6, 2))
sketch19.addConstraint(Sketcher.Constraint("DistanceX", 1, 1, 1, 2, 1.0))
sketch19.addConstraint(Sketcher.Constraint("DistanceY", 0, 2, 0, 1, 13.0))
sketch19.addConstraint(Sketcher.Constraint("DistanceY", 6, 1, 6, 2, 20.0))
sketch19.addConstraint(Sketcher.Constraint("Distance", 4, 1.0))
sketch19.addConstraint(Sketcher.Constraint("DistanceX", 2, 2, 4, 2, 4.0))
sketch19.addConstraint(Sketcher.Constraint("DistanceX", 1, 2, 6, 1, 7.0))
sketch19.addConstraint(Sketcher.Constraint("DistanceX", 0, 2, -1, 1, 45.180848))
sketch19.addConstraint(Sketcher.Constraint("DistanceY", 2, 2, -1, 1, 38.908411))
revolution = doc.addObject("PartDesign::Revolution", "Revolution")
body5.addObject(revolution)
revolution.Profile = sketch19
revolution.ReferenceAxis = (sketch19, ["Axis0"])
revolution.Angle = 360
doc.recompute()

fillet = doc.addObject("PartDesign::Fillet", "Fillet")
body5.addObject(fillet)
fillet.Base = (revolution, edges_at(revolution, [(-30.181, 0, -38.908)]))
fillet.Radius = 3

doc.recompute()
